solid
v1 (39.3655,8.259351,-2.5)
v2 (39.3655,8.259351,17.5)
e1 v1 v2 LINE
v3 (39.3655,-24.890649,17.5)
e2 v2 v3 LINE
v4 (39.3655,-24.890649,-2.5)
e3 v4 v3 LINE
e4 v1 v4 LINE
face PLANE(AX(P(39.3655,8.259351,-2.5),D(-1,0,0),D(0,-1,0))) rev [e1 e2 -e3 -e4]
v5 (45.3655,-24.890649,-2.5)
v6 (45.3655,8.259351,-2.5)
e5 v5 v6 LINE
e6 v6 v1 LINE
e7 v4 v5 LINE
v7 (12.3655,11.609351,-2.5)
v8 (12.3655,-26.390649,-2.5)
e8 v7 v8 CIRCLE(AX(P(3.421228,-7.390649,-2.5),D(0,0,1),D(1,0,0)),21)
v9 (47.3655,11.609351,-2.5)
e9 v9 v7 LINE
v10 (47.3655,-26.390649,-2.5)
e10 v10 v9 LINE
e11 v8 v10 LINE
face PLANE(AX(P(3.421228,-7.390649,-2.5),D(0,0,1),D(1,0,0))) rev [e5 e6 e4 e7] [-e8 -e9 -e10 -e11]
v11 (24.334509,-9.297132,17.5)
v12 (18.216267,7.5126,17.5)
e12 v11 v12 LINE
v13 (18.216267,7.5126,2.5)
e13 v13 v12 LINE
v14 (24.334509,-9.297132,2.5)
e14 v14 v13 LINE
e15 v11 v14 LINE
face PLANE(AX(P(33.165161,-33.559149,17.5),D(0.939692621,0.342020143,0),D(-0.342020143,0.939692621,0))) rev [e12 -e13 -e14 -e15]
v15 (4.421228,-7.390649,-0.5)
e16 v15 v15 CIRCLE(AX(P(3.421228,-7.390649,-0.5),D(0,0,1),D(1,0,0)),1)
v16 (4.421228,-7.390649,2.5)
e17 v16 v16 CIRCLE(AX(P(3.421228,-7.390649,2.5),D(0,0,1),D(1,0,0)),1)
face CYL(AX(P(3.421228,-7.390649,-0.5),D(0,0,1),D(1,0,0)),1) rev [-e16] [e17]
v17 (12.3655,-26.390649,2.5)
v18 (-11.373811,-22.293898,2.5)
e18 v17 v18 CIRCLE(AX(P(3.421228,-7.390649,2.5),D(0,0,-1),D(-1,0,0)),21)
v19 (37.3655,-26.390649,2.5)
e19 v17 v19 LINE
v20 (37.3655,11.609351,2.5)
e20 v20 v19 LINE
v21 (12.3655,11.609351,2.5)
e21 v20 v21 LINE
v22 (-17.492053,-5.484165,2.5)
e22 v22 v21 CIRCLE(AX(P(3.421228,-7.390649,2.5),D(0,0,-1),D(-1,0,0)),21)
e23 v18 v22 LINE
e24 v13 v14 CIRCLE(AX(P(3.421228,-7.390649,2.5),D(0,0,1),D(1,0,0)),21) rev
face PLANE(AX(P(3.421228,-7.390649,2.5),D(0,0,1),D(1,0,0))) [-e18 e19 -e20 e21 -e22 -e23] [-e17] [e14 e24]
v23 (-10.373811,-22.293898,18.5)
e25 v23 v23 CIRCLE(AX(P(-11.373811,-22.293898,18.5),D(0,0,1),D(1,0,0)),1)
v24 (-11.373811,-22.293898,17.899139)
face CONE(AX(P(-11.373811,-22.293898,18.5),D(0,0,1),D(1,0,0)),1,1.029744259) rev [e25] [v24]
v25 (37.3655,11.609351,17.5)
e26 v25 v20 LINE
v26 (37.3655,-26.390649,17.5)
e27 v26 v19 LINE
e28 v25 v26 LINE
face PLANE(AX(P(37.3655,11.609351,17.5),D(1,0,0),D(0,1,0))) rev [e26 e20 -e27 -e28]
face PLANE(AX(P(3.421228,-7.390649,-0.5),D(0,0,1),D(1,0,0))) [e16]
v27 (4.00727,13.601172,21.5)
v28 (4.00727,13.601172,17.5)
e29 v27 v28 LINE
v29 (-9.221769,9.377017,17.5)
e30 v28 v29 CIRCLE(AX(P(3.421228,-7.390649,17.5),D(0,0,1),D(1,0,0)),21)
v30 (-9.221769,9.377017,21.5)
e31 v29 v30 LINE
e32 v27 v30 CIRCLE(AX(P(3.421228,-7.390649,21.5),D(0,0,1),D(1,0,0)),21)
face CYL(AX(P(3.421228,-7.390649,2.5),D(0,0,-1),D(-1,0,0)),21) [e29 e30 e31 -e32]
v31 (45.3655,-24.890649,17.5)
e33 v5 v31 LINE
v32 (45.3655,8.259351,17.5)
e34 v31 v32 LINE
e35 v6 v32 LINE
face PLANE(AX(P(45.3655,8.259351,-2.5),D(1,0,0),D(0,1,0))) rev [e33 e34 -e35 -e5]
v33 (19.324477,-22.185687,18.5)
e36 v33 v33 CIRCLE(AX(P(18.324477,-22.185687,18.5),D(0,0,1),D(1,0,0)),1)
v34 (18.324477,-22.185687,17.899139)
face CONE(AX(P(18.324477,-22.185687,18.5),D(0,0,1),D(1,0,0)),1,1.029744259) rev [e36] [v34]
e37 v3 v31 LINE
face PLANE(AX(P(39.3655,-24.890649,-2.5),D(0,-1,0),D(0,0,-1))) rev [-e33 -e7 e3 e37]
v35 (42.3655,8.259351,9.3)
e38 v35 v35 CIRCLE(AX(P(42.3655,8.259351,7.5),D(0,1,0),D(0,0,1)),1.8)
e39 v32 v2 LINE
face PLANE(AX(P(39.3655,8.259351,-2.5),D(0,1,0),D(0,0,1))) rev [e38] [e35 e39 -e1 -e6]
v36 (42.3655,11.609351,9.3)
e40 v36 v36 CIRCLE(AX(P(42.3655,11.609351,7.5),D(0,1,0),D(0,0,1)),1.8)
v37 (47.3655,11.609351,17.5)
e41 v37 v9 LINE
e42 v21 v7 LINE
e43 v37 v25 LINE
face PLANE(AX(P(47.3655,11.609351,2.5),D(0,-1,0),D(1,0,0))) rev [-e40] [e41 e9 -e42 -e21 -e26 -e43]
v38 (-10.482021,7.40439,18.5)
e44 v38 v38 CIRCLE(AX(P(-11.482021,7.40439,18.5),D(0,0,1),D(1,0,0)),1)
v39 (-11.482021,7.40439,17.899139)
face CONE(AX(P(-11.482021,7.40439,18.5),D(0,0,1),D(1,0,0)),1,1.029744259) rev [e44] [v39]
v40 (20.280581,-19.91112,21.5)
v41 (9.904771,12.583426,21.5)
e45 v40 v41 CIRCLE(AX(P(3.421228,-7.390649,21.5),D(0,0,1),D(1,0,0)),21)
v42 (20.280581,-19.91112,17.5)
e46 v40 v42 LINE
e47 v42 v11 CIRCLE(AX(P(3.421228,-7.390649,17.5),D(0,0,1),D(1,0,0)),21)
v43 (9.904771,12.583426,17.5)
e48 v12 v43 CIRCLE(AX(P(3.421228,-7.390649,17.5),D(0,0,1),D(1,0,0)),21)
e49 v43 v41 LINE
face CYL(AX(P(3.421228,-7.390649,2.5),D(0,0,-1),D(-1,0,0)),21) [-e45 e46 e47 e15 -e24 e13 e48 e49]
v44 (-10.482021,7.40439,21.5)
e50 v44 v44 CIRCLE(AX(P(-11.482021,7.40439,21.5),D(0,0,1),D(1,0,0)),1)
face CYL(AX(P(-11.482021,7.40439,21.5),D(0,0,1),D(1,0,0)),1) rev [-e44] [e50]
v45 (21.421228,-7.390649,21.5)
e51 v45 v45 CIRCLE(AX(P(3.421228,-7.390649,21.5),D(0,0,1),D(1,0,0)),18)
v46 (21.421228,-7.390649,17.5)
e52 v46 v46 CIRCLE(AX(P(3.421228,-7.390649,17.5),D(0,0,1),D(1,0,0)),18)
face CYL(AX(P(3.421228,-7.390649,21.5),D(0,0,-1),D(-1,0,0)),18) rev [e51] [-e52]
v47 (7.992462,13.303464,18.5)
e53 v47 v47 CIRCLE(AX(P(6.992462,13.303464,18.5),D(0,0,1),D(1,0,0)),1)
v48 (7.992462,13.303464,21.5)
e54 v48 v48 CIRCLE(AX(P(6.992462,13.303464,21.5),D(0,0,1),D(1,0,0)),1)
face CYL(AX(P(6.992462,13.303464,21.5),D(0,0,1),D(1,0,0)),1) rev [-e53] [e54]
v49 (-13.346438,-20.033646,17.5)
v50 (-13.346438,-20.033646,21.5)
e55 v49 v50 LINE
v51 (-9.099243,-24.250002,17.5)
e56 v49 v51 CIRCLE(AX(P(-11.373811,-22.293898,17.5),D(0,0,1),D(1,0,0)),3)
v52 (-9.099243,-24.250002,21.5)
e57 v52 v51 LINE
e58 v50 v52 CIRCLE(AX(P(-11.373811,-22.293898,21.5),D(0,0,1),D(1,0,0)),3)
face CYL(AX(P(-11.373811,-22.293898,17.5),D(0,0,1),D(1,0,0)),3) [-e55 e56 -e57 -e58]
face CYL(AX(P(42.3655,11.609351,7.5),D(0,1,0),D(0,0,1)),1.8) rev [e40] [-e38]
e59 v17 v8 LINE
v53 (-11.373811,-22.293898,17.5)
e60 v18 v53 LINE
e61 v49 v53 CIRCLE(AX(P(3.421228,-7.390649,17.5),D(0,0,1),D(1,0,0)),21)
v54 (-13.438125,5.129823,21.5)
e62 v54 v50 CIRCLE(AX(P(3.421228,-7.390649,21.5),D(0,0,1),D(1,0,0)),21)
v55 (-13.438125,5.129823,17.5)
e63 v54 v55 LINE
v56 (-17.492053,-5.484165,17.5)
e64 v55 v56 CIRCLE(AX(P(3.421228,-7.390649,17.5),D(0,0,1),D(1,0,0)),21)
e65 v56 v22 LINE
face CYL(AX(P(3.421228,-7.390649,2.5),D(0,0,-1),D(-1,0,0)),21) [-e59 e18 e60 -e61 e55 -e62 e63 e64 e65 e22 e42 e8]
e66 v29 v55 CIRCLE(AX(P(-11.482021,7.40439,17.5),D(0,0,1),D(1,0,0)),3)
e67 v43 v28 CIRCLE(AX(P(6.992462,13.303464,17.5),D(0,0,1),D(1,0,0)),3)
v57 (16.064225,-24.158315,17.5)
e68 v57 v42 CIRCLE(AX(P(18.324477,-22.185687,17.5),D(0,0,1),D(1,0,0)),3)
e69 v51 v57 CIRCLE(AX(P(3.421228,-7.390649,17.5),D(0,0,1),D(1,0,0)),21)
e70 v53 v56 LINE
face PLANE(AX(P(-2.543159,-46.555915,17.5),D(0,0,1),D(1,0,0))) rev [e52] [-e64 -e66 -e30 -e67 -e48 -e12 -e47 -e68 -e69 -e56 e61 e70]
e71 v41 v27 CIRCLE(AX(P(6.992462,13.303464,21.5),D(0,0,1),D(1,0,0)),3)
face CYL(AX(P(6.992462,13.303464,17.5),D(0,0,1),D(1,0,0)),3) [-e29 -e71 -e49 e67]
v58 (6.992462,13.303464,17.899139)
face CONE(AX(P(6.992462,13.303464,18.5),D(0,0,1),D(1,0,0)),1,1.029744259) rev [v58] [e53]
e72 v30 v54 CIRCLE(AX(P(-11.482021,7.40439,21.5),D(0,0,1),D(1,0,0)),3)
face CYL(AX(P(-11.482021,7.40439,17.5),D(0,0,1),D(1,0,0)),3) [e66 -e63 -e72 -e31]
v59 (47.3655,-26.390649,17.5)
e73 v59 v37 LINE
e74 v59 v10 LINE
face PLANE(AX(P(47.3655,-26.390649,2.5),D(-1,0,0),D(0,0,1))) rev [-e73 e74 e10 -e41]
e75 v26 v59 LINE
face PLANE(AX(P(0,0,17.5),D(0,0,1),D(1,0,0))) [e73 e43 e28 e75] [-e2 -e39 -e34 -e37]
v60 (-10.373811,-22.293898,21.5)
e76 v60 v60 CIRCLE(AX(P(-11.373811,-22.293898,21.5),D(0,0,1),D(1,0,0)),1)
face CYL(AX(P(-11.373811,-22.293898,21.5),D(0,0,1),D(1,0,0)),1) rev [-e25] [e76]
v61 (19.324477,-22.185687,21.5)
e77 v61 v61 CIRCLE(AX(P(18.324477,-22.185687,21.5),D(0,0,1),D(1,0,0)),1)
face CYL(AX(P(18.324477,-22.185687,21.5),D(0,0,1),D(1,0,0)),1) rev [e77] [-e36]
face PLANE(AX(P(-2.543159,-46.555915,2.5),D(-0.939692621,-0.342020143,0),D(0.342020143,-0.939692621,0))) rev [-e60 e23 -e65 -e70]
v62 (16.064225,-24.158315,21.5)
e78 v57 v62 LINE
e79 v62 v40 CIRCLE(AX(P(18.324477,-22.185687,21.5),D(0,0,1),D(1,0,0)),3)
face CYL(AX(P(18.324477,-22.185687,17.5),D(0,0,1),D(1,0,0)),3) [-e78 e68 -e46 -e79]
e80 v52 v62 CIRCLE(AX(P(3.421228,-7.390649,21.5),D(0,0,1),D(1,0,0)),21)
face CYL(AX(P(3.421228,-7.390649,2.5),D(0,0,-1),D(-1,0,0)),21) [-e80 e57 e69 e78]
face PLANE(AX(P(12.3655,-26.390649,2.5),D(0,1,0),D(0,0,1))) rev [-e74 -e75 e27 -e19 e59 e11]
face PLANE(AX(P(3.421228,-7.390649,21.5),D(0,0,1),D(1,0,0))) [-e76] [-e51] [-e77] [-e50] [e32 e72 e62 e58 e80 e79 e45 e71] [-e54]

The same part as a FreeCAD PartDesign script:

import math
import FreeCAD as App
import Part
import Sketcher
from FreeCAD import Vector
Q = App.Units.Quantity

doc = App.newDocument("Part")
body = doc.addObject("PartDesign::Body", "Body")

sketch1 = doc.addObject("Sketcher::SketchObject", "Sketch")
body.addObject(sketch1)
sketch1.AttachmentSupport = (doc.XY_Plane, [""])
sketch1.MapMode = "FlatFace"
sketch1.addGeometry(Part.LineSegment(Vector(12.3655, -26.390649, 0), Vector(47.3655, -26.390649, 0)), False)
sketch1.addGeometry(Part.LineSegment(Vector(47.3655, -26.390649, 0), Vector(47.3655, 11.609351, 0)), False)
sketch1.addGeometry(Part.LineSegment(Vector(47.3655, 11.609351, 0), Vector(12.3655, 11.609351, 0)), False)
sketch1.addGeometry(Part.ArcOfCircle(Part.Circle(Vector(3.421228, -7.390649, 0), Vector(0, 0, 1), 21), math.radians(64.791235), math.radians(295.208765)), False)
sketch1.addConstraint(Sketcher.Constraint("Coincident", 0, 2, 1, 1))
sketch1.addConstraint(Sketcher.Constraint("Coincident", 1, 2, 2, 1))
sketch1.addConstraint(Sketcher.Constraint("Coincident", 2, 2, 3, 1))
sketch1.addConstraint(Sketcher.Constraint("Coincident", 3, 2, 0, 1))
sketch1.addConstraint(Sketcher.Constraint("Horizontal", 0))
sketch1.addConstraint(Sketcher.Constraint("Vertical", 1))
sketch1.addConstraint(Sketcher.Constraint("Horizontal", 2))
sketch1.addConstraint(Sketcher.Constraint("Vertical", 2, 2, 3, 2))
sketch1.addConstraint(Sketcher.Constraint("Radius", 3, Q("21 mm")))
sketch1.addConstraint(Sketcher.Constraint("DistanceX", 0, 1, 0, 2, Q("35 mm")))
sketch1.addConstraint(Sketcher.Constraint("DistanceY", 1, 1, 1, 2, Q("38 mm")))
sketch1.addConstraint(Sketcher.Constraint("DistanceX", -1, 1, 0, 2, Q("47.3655 mm")))
sketch1.addConstraint(Sketcher.Constraint("DistanceY", 3, 3, -1, 1, Q("7.390649 mm")))
pad1 = doc.addObject("PartDesign::Pad", "Pad")
body.addObject(pad1)
pad1.Profile = sketch1
pad1.Length = 5
pad1.Midplane = True

sketch2 = doc.addObject("Sketcher::SketchObject", "Sketch001")
body.addObject(sketch2)
sketch2.AttachmentSupport = (doc.XY_Plane, [""])
sketch2.MapMode = "FlatFace"
sketch2.AttachmentOffset = App.Placement(Vector(0, 0, 2.5), App.Rotation())
sketch2.addGeometry(Part.LineSegment(Vector(37.3655, 11.609351, 0), Vector(37.3655, -26.390649, 0)), False)
sketch2.addGeometry(Part.LineSegment(Vector(37.3655, -26.390649, 0), Vector(47.3655, -26.390649, 0)), False)
sketch2.addGeometry(Part.LineSegment(Vector(47.3655, -26.390649, 0), Vector(47.3655, 11.609351, 0)), False)
sketch2.addGeometry(Part.LineSegment(Vector(47.3655, 11.609351, 0), Vector(37.3655, 11.609351, 0)), False)
sketch2.addConstraint(Sketcher.Constraint("Coincident", 0, 2, 1, 1))
sketch2.addConstraint(Sketcher.Constraint("Coincident", 1, 2, 2, 1))
sketch2.addConstraint(Sketcher.Constraint("Coincident", 2, 2, 3, 1))
sketch2.addConstraint(Sketcher.Constraint("Coincident", 3, 2, 0, 1))
sketch2.addConstraint(Sketcher.Constraint("Vertical", 0))
sketch2.addConstraint(Sketcher.Constraint("Horizontal", 1))
sketch2.addConstraint(Sketcher.Constraint("Vertical", 2))
sketch2.addConstraint(Sketcher.Constraint("Horizontal", 3))
sketch2.addConstraint(Sketcher.Constraint("DistanceX", 1, 1, 1, 2, Q("10 mm")))
sketch2.addConstraint(Sketcher.Constraint("DistanceY", 0, 2, 0, 1, Q("38 mm")))
sketch2.addConstraint(Sketcher.Constraint("DistanceX", -1, 1, 0, 2, Q("37.3655 mm")))
sketch2.addConstraint(Sketcher.Constraint("DistanceY", 0, 2, -1, 1, Q("26.390649 mm")))
pad2 = doc.addObject("PartDesign::Pad", "Pad001")
body.addObject(pad2)
pad2.Profile = sketch2
pad2.Length = 15

sketch3 = doc.addObject("Sketcher::SketchObject", "Sketch002")
body.addObject(sketch3)
sketch3.AttachmentSupport = (doc.XY_Plane, [""])
sketch3.MapMode = "FlatFace"
sketch3.AttachmentOffset = App.Placement(Vector(0, 0, 17.5), App.Rotation())
sketch3.addGeometry(Part.LineSegment(Vector(39.3655, 8.259351, 0), Vector(39.3655, -24.890649, 0)), False)
sketch3.addGeometry(Part.LineSegment(Vector(39.3655, -24.890649, 0), Vector(45.3655, -24.890649, 0)), False)
sketch3.addGeometry(Part.LineSegment(Vector(45.3655, -24.890649, 0), Vector(45.3655, 8.259351, 0)), False)
sketch3.addGeometry(Part.LineSegment(Vector(45.3655, 8.259351, 0), Vector(39.3655, 8.259351, 0)), False)
sketch3.addConstraint(Sketcher.Constraint("Coincident", 0, 2, 1, 1))
sketch3.addConstraint(Sketcher.Constraint("Coincident", 1, 2, 2, 1))
sketch3.addConstraint(Sketcher.Constraint("Coincident", 2, 2, 3, 1))
sketch3.addConstraint(Sketcher.Constraint("Coincident", 3, 2, 0, 1))
sketch3.addConstraint(Sketcher.Constraint("Vertical", 0))
sketch3.addConstraint(Sketcher.Constraint("Horizontal", 1))
sketch3.addConstraint(Sketcher.Constraint("Vertical", 2))
sketch3.addConstraint(Sketcher.Constraint("Horizontal", 3))
sketch3.addConstraint(Sketcher.Constraint("DistanceX", 1, 1, 1, 2, Q("6 mm")))
sketch3.addConstraint(Sketcher.Constraint("DistanceY", 0, 2, 0, 1, Q("33.15 mm")))
sketch3.addConstraint(Sketcher.Constraint("DistanceX", -1, 1, 0, 2, Q("39.3655 mm")))
sketch3.addConstraint(Sketcher.Constraint("DistanceY", 0, 2, -1, 1, Q("24.890649 mm")))
pocket1 = doc.addObject("PartDesign::Pocket", "Pocket")
body.addObject(pocket1)
pocket1.Profile = sketch3
pocket1.Length = 20

sketch4 = doc.addObject("Sketcher::SketchObject", "Sketch003")
body.addObject(sketch4)
sketch4.AttachmentSupport = (doc.XY_Plane, [""])
sketch4.MapMode = "FlatFace"
sketch4.AttachmentOffset = App.Placement(Vector(0, 0, 21.5), App.Rotation())
sketch4.addGeometry(Part.Circle(Vector(3.421228, -7.390649, 0), Vector(0, 0, 1), 21), False)
sketch4.addGeometry(Part.Circle(Vector(3.421228, -7.390649, 0), Vector(0, 0, 1), 18), False)
sketch4.addConstraint(Sketcher.Constraint("Coincident", 1, 3, 0, 3))
sketch4.addConstraint(Sketcher.Constraint("Diameter", 0, Q("42 mm")))
sketch4.addConstraint(Sketcher.Constraint("Diameter", 1, Q("36 mm")))
sketch4.addConstraint(Sketcher.Constraint("DistanceY", 0, 3, -1, 1, Q("7.390649 mm")))
sketch4.addConstraint(Sketcher.Constraint("DistanceX", -1, 1, 0, 3, Q("3.421228 mm")))
pad3 = doc.addObject("PartDesign::Pad", "Pad002")
body.addObject(pad3)
pad3.Profile = sketch4
pad3.Length = 19
pad3.Reversed = True

sketch5 = doc.addObject("Sketcher::SketchObject", "Sketch004")
body.addObject(sketch5)
sketch5.Placement = App.Placement(Vector(-4.406907, 12.107876, 0), App.Rotation(Vector(0.939692621, 0.342020143, 0), Vector(0, 0, -1), Vector(-0.342020143, 0.939692621, 0), "ZXY"))
sketch5.addGeometry(Part.LineSegment(Vector(-18.312848, -2.5, 0), Vector(-18.312848, -17.5, 0)), False)
sketch5.addGeometry(Part.LineSegment(Vector(-18.312848, -17.5, 0), Vector(19.687152, -17.5, 0)), False)
sketch5.addGeometry(Part.LineSegment(Vector(19.687152, -17.5, 0), Vector(19.687152, -2.5, 0)), False)
sketch5.addGeometry(Part.LineSegment(Vector(19.687152, -2.5, 0), Vector(-18.312848, -2.5, 0)), False)
sketch5.addConstraint(Sketcher.Constraint("Coincident", 0, 2, 1, 1))
sketch5.addConstraint(Sketcher.Constraint("Coincident", 1, 2, 2, 1))
sketch5.addConstraint(Sketcher.Constraint("Coincident", 2, 2, 3, 1))
sketch5.addConstraint(Sketcher.Constraint("Coincident", 3, 2, 0, 1))
sketch5.addConstraint(Sketcher.Constraint("Vertical", 0))
sketch5.addConstraint(Sketcher.Constraint("Horizontal", 1))
sketch5.addConstraint(Sketcher.Constraint("Vertical", 2))
sketch5.addConstraint(Sketcher.Constraint("Horizontal", 3))
sketch5.addConstraint(Sketcher.Constraint("DistanceX", 1, 1, 1, 2, Q("38 mm")))
sketch5.addConstraint(Sketcher.Constraint("DistanceY", 0, 2, 0, 1, Q("15 mm")))
sketch5.addConstraint(Sketcher.Constraint("DistanceY", 0, 2, -1, 1, Q("17.5 mm")))
sketch5.addConstraint(Sketcher.Constraint("DistanceX", 0, 2, -1, 1, Q("18.312848 mm")))
pocket2 = doc.addObject("PartDesign::Pocket", "Pocket001")
body.addObject(pocket2)
pocket2.Profile = sketch5
pocket2.Type = "ThroughAll"

sketch6 = doc.addObject("Sketcher::SketchObject", "Sketch005")
body.addObject(sketch6)
sketch6.AttachmentSupport = (doc.XY_Plane, [""])
sketch6.MapMode = "FlatFace"
sketch6.AttachmentOffset = App.Placement(Vector(0, 0, 21.5), App.Rotation())
sketch6.addGeometry(Part.Circle(Vector(-11.482021, 7.40439, 0), Vector(0, 0, 1), 3), False)
sketch6.addGeometry(Part.Circle(Vector(18.324477, -22.185687, 0), Vector(0, 0, 1), 3), False)
sketch6.addGeometry(Part.Circle(Vector(-11.373811, -22.293898, 0), Vector(0, 0, 1), 3), False)
sketch6.addGeometry(Part.Circle(Vector(6.992462, 13.303464, 0), Vector(0, 0, 1), 3), False)
sketch6.addConstraint(Sketcher.Constraint("Equal", 0, 1))
sketch6.addConstraint(Sketcher.Constraint("Equal", 1, 2))
sketch6.addConstraint(Sketcher.Constraint("Equal", 2, 3))
sketch6.addConstraint(Sketcher.Constraint("Diameter", 0, Q("6 mm")))
sketch6.addConstraint(Sketcher.Constraint("DistanceX", 0, 3, 1, 3, Q("29.806498 mm")))
sketch6.addConstraint(Sketcher.Constraint("DistanceX", 0, 3, -1, 1, Q("11.482021 mm")))
sketch6.addConstraint(Sketcher.Constraint("DistanceY", -1, 1, 0, 3, Q("7.40439 mm")))
sketch6.addConstraint(Sketcher.Constraint("DistanceX", 2, 3, -1, 1, Q("11.373811 mm")))
sketch6.addConstraint(Sketcher.Constraint("DistanceX", -1, 1, 3, 3, Q("6.992462 mm")))
sketch6.addConstraint(Sketcher.Constraint("DistanceY", 2, 3, 1, 3, Q("0.10821 mm")))
sketch6.addConstraint(Sketcher.Constraint("DistanceY", 1, 3, 3, 3, Q("35.489151 mm")))
sketch6.addConstraint(Sketcher.Constraint("DistanceY", 1, 3, -1, 1, Q("22.185687 mm")))
pad4 = doc.addObject("PartDesign::Pad", "Pad003")
body.addObject(pad4)
pad4.Profile = sketch6
pad4.Length = 4
pad4.Reversed = True

sketch7 = doc.addObject("Sketcher::SketchObject", "Sketch006")
body.addObject(sketch7)
sketch7.AttachmentSupport = (doc.XY_Plane, [""])
sketch7.MapMode = "FlatFace"
sketch7.AttachmentOffset = App.Placement(Vector(0, 0, 21.5), App.Rotation())
sketch7.addGeometry(Part.Circle(Vector(6.992462, 13.303464, 0), Vector(0, 0, 1), 1), False)
sketch7.addGeometry(Part.Circle(Vector(-11.482021, 7.40439, 0), Vector(0, 0, 1), 1), False)
sketch7.addGeometry(Part.Circle(Vector(-11.373811, -22.293898, 0), Vector(0, 0, 1), 1), False)
sketch7.addGeometry(Part.Circle(Vector(18.324477, -22.185687, 0), Vector(0, 0, 1), 1), False)
sketch7.addConstraint(Sketcher.Constraint("Equal", 0, 1))
sketch7.addConstraint(Sketcher.Constraint("Equal", 1, 2))
sketch7.addConstraint(Sketcher.Constraint("Equal", 2, 3))
sketch7.addConstraint(Sketcher.Constraint("Diameter", 0, Q("2 mm")))
sketch7.addConstraint(Sketcher.Constraint("DistanceX", 1, 3, 3, 3, Q("29.806498 mm")))
sketch7.addConstraint(Sketcher.Constraint("DistanceX", -1, 1, 0, 3, Q("6.992462 mm")))
sketch7.addConstraint(Sketcher.Constraint("DistanceX", 1, 3, -1, 1, Q("11.482021 mm")))
sketch7.addConstraint(Sketcher.Constraint("DistanceY", -1, 1, 1, 3, Q("7.40439 mm")))
sketch7.addConstraint(Sketcher.Constraint("DistanceX", 2, 3, -1, 1, Q("11.373811 mm")))
sketch7.addConstraint(Sketcher.Constraint("DistanceY", 2, 3, 0, 3, Q("35.597361 mm")))
sketch7.addConstraint(Sketcher.Constraint("DistanceY", 2, 3, 3, 3, Q("0.10821 mm")))
sketch7.addConstraint(Sketcher.Constraint("DistanceY", -1, 1, 0, 3, Q("13.303464 mm")))
doc.recompute()
hole = doc.addObject("PartDesign::Hole", "Hole")
body.addObject(hole)
hole.Profile = sketch7
hole.ThreadType = "None"
hole.Diameter = 2
hole.DepthType = "Dimension"
hole.Depth = 3
hole.DrillPoint = "Angled"
hole.DrillPointAngle = 118

sketch8 = doc.addObject("Sketcher::SketchObject", "Sketch007")
body.addObject(sketch8)
sketch8.AttachmentSupport = (doc.XY_Plane, [""])
sketch8.MapMode = "FlatFace"
sketch8.AttachmentOffset = App.Placement(Vector(0, 0, 2.5), App.Rotation())
sketch8.addGeometry(Part.Circle(Vector(3.421228, -7.390649, 0), Vector(0, 0, 1), 1), False)
sketch8.addConstraint(Sketcher.Constraint("Diameter", 0, Q("2 mm")))
sketch8.addConstraint(Sketcher.Constraint("DistanceY", 0, 3, -1, 1, Q("7.390649 mm")))
sketch8.addConstraint(Sketcher.Constraint("DistanceX", -1, 1, 0, 3, Q("3.421228 mm")))
pocket3 = doc.addObject("PartDesign::Pocket", "Pocket002")
body.addObject(pocket3)
pocket3.Profile = sketch8
pocket3.Length = 3

sketch9 = doc.addObject("Sketcher::SketchObject", "Sketch008")
body.addObject(sketch9)
sketch9.AttachmentSupport = (doc.XZ_Plane, [""])
sketch9.MapMode = "FlatFace"
sketch9.AttachmentOffset = App.Placement(Vector(0, 0, -11.609351), App.Rotation())
sketch9.addGeometry(Part.Circle(Vector(42.3655, 7.5, 0), Vector(0, 0, 1), 1.8), False)
sketch9.addConstraint(Sketcher.Constraint("Diameter", 0, Q("3.6 mm")))
sketch9.addConstraint(Sketcher.Constraint("DistanceY", -1, 1, 0, 3, Q("7.5 mm")))
sketch9.addConstraint(Sketcher.Constraint("DistanceX", -1, 1, 0, 3, Q("42.3655 mm")))
doc.recompute()
hole2 = doc.addObject("PartDesign::Hole", "Hole001")
body.addObject(hole2)
hole2.Profile = sketch9
hole2.ThreadType = "None"
hole2.Diameter = 3.6
hole2.DepthType = "Dimension"
hole2.Depth = 4
hole2.DrillPoint = "Angled"
hole2.DrillPointAngle = 118
hole2.Reversed = True

doc.recompute()
